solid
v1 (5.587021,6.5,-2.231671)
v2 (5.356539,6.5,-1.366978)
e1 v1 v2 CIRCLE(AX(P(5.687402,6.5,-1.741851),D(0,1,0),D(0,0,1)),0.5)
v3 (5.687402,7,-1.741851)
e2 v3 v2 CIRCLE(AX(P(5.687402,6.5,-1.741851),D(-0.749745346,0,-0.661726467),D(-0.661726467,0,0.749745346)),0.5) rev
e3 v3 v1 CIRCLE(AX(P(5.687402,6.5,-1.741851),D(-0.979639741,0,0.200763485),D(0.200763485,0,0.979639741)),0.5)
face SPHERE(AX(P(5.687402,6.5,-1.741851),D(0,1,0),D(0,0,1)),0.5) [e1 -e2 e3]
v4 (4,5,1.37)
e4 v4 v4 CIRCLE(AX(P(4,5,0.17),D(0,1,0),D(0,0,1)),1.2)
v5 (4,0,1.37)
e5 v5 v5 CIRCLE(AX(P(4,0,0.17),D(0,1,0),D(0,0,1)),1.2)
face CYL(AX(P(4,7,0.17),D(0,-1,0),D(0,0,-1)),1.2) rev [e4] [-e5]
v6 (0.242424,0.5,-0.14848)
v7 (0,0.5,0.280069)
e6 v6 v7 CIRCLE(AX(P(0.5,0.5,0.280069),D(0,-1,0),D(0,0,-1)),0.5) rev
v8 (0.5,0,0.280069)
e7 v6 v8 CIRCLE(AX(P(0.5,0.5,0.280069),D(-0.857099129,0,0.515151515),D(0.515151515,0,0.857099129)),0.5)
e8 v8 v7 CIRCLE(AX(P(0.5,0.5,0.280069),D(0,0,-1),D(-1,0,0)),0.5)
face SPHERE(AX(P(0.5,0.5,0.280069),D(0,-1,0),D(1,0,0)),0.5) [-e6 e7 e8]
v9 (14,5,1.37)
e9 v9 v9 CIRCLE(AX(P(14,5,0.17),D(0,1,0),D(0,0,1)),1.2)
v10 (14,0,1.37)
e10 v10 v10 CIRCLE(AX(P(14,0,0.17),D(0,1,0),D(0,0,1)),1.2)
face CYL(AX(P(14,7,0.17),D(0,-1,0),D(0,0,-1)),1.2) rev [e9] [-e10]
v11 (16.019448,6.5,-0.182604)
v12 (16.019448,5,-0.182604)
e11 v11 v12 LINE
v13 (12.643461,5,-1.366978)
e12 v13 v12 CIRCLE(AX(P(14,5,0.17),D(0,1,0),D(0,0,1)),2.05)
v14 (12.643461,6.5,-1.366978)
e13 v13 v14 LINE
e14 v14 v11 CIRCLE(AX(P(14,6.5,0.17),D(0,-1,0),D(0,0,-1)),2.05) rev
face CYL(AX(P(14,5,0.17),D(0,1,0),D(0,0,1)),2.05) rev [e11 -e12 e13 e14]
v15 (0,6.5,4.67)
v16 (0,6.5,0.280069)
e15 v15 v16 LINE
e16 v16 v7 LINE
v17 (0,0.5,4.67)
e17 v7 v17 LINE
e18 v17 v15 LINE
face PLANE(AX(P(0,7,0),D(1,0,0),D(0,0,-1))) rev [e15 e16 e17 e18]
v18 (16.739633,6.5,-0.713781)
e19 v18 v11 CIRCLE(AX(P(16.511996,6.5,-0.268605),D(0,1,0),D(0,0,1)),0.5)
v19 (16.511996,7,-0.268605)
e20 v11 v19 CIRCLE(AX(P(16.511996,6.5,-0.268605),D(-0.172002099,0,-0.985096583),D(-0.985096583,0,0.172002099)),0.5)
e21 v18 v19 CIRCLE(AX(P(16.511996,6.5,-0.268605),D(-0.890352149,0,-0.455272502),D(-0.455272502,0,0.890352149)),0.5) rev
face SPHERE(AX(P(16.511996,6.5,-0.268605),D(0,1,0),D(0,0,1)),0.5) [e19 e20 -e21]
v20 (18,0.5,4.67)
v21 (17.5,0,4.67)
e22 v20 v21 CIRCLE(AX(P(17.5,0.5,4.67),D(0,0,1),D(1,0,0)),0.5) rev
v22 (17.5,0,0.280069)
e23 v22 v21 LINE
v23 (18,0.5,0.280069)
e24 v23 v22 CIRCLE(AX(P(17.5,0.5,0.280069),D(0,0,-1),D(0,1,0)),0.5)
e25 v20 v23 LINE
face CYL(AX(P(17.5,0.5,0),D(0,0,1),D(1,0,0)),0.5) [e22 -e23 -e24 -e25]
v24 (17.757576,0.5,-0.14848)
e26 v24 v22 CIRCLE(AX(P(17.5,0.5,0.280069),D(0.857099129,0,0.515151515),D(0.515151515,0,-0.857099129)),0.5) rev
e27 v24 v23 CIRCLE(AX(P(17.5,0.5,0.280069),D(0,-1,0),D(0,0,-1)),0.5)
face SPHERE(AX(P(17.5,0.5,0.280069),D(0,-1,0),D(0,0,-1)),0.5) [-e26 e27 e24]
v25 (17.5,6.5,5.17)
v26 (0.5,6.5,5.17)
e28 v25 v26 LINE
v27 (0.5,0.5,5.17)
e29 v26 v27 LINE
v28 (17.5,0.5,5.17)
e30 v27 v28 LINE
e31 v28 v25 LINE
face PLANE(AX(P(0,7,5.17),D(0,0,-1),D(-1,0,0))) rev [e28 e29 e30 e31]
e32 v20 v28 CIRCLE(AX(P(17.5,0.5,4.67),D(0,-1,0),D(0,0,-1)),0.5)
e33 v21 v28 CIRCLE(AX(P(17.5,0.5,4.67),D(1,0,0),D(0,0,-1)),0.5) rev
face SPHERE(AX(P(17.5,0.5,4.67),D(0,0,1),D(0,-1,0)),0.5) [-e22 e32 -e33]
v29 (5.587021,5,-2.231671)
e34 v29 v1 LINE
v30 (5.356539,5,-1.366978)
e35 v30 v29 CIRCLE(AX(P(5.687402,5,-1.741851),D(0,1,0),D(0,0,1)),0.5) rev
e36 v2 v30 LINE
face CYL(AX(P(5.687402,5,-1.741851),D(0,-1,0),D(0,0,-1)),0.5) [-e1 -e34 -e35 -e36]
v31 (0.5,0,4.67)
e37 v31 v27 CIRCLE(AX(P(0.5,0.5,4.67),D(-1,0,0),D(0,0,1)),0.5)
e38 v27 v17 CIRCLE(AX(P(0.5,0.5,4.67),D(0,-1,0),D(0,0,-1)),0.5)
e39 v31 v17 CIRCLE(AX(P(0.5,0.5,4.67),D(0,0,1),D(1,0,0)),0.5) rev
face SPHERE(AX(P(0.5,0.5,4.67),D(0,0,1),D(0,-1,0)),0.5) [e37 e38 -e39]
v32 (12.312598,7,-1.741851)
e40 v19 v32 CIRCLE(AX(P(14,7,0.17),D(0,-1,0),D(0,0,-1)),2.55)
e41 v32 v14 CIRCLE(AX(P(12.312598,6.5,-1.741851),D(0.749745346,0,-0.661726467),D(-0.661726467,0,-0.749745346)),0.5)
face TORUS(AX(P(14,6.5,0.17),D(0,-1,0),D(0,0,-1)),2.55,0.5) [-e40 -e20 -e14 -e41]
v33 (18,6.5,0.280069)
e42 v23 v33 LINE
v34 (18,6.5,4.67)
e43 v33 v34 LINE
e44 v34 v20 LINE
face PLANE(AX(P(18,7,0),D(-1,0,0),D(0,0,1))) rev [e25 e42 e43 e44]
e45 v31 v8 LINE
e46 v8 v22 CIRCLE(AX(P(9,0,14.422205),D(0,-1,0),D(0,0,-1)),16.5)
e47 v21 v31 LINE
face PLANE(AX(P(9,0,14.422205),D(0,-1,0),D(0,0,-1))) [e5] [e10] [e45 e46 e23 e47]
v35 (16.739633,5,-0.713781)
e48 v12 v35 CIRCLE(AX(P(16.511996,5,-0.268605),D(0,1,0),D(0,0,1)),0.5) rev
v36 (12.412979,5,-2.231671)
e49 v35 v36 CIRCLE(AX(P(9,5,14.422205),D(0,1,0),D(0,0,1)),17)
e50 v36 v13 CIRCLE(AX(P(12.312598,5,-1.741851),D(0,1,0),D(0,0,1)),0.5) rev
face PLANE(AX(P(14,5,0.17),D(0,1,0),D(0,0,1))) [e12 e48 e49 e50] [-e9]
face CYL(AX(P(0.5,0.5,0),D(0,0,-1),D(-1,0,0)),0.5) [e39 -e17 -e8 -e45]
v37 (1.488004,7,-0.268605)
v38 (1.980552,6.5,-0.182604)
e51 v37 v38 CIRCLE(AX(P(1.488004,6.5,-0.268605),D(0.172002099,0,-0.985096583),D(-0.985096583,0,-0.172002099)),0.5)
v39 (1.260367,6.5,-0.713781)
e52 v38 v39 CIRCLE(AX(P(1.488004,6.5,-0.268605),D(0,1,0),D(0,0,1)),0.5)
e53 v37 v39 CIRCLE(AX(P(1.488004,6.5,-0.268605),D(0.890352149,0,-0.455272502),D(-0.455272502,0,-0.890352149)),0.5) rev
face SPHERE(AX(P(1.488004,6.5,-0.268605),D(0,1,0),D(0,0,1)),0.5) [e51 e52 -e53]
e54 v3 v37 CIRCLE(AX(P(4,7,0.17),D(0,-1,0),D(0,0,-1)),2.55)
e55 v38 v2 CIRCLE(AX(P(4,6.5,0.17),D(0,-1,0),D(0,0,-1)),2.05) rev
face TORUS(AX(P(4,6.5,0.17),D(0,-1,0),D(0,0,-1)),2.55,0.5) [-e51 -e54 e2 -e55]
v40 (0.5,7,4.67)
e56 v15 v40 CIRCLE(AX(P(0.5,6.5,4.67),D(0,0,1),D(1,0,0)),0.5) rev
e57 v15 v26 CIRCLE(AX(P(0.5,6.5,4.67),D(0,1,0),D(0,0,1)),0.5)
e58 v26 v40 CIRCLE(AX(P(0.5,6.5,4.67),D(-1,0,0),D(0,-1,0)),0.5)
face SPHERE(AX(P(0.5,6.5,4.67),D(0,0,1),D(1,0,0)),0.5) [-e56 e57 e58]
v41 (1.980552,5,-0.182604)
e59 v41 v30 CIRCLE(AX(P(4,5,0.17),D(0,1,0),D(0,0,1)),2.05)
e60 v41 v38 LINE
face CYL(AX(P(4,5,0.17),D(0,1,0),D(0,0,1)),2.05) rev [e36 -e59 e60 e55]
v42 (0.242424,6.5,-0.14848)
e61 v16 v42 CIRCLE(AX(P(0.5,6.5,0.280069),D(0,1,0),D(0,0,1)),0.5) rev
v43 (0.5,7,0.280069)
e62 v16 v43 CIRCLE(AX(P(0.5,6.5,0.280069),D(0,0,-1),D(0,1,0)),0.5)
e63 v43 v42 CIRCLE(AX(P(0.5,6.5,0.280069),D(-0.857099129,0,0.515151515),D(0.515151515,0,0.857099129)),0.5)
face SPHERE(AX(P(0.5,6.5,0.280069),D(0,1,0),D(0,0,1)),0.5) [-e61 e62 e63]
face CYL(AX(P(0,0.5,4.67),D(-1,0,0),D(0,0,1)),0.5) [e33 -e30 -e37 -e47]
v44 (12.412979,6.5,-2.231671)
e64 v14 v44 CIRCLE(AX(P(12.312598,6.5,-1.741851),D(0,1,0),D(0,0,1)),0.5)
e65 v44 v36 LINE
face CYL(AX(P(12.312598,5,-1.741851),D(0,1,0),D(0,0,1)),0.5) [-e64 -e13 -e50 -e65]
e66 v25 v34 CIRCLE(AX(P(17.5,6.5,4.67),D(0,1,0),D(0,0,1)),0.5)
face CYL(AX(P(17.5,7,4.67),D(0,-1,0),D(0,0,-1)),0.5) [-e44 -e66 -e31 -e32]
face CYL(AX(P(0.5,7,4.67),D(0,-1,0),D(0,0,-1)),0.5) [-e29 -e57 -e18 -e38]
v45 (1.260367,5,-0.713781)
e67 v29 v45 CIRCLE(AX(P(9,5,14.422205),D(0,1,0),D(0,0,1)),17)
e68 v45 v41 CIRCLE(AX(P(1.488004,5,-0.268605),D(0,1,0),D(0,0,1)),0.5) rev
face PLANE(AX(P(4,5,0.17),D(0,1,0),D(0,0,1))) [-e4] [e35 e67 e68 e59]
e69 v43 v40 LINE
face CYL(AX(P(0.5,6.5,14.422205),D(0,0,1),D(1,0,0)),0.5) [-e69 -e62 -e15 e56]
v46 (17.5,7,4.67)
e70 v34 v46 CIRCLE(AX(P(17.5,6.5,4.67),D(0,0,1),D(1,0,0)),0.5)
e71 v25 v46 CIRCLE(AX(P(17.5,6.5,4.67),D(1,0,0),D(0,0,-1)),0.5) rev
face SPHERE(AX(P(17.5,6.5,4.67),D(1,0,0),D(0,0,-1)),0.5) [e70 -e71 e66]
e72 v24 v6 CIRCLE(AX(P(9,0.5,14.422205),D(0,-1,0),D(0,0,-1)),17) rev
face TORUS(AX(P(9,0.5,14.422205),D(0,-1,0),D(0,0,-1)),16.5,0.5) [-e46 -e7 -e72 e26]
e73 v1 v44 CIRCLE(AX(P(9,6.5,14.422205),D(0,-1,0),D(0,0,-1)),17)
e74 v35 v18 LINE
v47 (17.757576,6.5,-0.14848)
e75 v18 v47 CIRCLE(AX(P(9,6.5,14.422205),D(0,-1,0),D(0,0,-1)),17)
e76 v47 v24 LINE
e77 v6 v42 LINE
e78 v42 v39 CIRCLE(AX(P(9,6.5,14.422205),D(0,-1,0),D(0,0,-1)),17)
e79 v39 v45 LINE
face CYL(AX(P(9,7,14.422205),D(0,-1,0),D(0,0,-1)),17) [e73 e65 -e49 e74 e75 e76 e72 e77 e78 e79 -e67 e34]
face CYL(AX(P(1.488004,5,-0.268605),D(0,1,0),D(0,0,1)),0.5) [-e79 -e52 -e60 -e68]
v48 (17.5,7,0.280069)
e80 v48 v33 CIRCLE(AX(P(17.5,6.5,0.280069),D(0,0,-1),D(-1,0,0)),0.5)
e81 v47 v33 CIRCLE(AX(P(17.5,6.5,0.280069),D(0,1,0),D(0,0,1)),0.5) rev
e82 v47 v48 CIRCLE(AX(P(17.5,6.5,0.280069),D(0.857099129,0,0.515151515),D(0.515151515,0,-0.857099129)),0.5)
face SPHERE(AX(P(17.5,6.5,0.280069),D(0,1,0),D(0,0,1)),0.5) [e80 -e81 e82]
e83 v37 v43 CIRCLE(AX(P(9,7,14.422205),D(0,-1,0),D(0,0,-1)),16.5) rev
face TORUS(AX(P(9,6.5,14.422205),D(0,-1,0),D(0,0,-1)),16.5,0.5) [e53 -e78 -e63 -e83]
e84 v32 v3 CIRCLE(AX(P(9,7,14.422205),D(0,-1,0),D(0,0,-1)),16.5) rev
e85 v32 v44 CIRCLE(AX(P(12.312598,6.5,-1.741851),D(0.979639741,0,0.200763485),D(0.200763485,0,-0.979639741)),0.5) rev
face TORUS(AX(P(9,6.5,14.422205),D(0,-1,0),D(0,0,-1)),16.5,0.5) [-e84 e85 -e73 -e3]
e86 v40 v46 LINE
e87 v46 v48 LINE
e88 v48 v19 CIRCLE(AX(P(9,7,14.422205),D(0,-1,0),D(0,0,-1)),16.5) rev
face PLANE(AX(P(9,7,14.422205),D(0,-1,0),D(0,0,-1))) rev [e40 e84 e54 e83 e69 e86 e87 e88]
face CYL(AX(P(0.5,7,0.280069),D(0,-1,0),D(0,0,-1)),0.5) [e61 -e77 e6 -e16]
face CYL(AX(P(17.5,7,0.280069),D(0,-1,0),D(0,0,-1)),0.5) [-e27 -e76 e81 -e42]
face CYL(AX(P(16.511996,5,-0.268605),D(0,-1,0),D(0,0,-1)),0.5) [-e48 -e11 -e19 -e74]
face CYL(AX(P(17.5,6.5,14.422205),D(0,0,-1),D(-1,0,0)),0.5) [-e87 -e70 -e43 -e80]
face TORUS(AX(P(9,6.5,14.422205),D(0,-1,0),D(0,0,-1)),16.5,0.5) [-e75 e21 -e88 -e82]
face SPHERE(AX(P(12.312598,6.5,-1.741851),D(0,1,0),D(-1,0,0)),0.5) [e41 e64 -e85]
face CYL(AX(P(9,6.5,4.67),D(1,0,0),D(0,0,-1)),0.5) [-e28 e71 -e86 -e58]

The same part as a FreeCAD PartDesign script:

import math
import FreeCAD as App
import Part
import Sketcher
from FreeCAD import Vector


def edges_at(feature, points):
    """Names of the edges that pass closest to the given points."""
    edges = feature.Shape.Edges
    near = lambda p: min(range(len(edges)), key=lambda i: edges[i].distToShape(Part.Vertex(*p))[0])
    return sorted({f"Edge{near(p) + 1}" for p in points})

doc = App.newDocument("Part")
params = doc.addObject("Spreadsheet::Sheet", "Params")
for row, (alias, value) in enumerate([
    ("sketch1_radius", "17 mm"),
    ("sketch1_diameter", "2.4 mm"),
    ("sketch1_width", "18 mm"),
    ("sketch1_height", "5.17 mm"),
    ("pad1_length", "7 mm"),
    ("sketch2_diameter", "4.1 mm"),
    ("pocket1_length", "2 mm"),
    ("fillet_radius", "0.5 mm"),
], start=1):
    params.set(f"A{row}", alias)
    params.set(f"B{row}", "=" + value)
    params.setAlias(f"B{row}", alias)

body = doc.addObject("PartDesign::Body", "Body")

sketch1 = body.newObject("Sketcher::SketchObject", "Sketch")
sketch1.AttachmentSupport = (doc.getObject("XZ_Plane"), [""])
sketch1.MapMode = "FlatFace"
sketch1.addGeometry(Part.LineSegment(Vector(0, 0, 0), Vector(0, 5.2, 0)), False)
sketch1.addGeometry(Part.LineSegment(Vector(0, 5.2, 0), Vector(18, 5.2, 0)), False)
sketch1.addGeometry(Part.LineSegment(Vector(18, 5.2, 0), Vector(18, 0, 0)), False)
sketch1.addGeometry(Part.ArcOfCircle(Part.Circle(Vector(9, 14.4, 0), Vector(0, 0, 1), 17), math.radians(-122), math.radians(-58)), False)
sketch1.addGeometry(Part.Circle(Vector(4, 0.2, 0), Vector(0, 0, 1), 1.2), False)
sketch1.addGeometry(Part.Circle(Vector(14, 0.2, 0), Vector(0, 0, 1), 1.2), False)
sketch1.addConstraint(Sketcher.Constraint("Coincident", 0, 2, 1, 1))
sketch1.addConstraint(Sketcher.Constraint("Coincident", 1, 2, 2, 1))
sketch1.addConstraint(Sketcher.Constraint("Coincident", 2, 2, 3, 2))
sketch1.addConstraint(Sketcher.Constraint("Coincident", 3, 1, 0, 1))
sketch1.addConstraint(Sketcher.Constraint("Vertical", 0))
sketch1.addConstraint(Sketcher.Constraint("Horizontal", 1))
sketch1.addConstraint(Sketcher.Constraint("Vertical", 2))
sketch1.addConstraint(Sketcher.Constraint("Coincident", 3, 1, -1, 1))
sketch1.addConstraint(Sketcher.Constraint("Equal", 4, 5))
sketch1.addConstraint(Sketcher.Constraint("PointOnObject", 2, 2, -1))
sketch1.addConstraint(Sketcher.Constraint("Horizontal", 4, 3, 5, 3))
sketch1.addConstraint(Sketcher.Constraint("Radius", 3, 17.0))
sketch1.addConstraint(Sketcher.Constraint("Diameter", 4, 2.4))
sketch1.addConstraint(Sketcher.Constraint("DistanceX", 1, 1, 1, 2, 18.0))
sketch1.addConstraint(Sketcher.Constraint("DistanceX", -1, 1, 4, 3, 4.0))
sketch1.addConstraint(Sketcher.Constraint("DistanceX", -1, 1, 5, 3, 14.0))
sketch1.addConstraint(Sketcher.Constraint("DistanceY", 4, 3, 0, 2, 5.0))
sketch1.addConstraint(Sketcher.Constraint("DistanceY", 0, 1, 0, 2, 5.17))
sketch1.setExpression("Constraints[11]", "Params.sketch1_radius")
sketch1.setExpression("Constraints[12]", "Params.sketch1_diameter")
sketch1.setExpression("Constraints[13]", "Params.sketch1_width")
sketch1.setExpression("Constraints[17]", "Params.sketch1_height")
pad1 = body.newObject("PartDesign::Pad", "Pad")
pad1.Profile = sketch1
pad1.setExpression("Length", "Params.pad1_length")
pad1.Reversed = True

sketch2 = body.newObject("Sketcher::SketchObject", "Sketch001")
sketch2.AttachmentSupport = (doc.getObject("XZ_Plane"), [""])
sketch2.MapMode = "FlatFace"
sketch2.AttachmentOffset = App.Placement(Vector(0, 0, -7), App.Rotation())
sketch2.addGeometry(Part.Circle(Vector(4, 0.2, 0), Vector(0, 0, 1), 2), False)
sketch2.addGeometry(Part.Circle(Vector(14, 0.2, 0), Vector(0, 0, 1), 2), False)
sketch2.addConstraint(Sketcher.Constraint("Equal", 0, 1))
sketch2.addConstraint(Sketcher.Constraint("Horizontal", 0, 3, 1, 3))
sketch2.addConstraint(Sketcher.Constraint("Diameter", 0, 4.1))
sketch2.addConstraint(Sketcher.Constraint("DistanceX", -1, 1, 0, 3, 4.0))
sketch2.addConstraint(Sketcher.Constraint("DistanceX", -1, 1, 1, 3, 14.0))
sketch2.addConstraint(Sketcher.Constraint("DistanceY", -1, 1, 0, 3, 0.17))
sketch2.setExpression("Constraints[2]", "Params.sketch2_diameter")
pocket1 = body.newObject("PartDesign::Pocket", "Pocket")
pocket1.Profile = sketch2
pocket1.setExpression("Length", "Params.pocket1_length")
pocket1.Reversed = True
doc.recompute()

fillet = body.newObject("PartDesign::Fillet", "Fillet")
fillet.Base = (pocket1, edges_at(pocket1, [
    (0, 7, 2.585),
    (9, 7, 5.17),
    (9, 7, -2.578),
    (1.271, 7, -0.719),
    (13.841, 6, -1.874),
    (15.401, 6, -1.327),
    (2.599, 6, -1.327),
    (4.159, 6, -1.874),
    (4.679, 7, 2.104),
    (13.321, 7, 2.104),
    (18, 7, 2.585),
    (9, 0, 5.17),
    (0, 0, 2.585),
    (9, 0, -2.578),
    (18, 0, 2.585),
    (18, 3.5, 5.17),
    (0, 3.5, 5.17),
    (0, 3.5, 0),
    (18, 3.5, 0),
    (16.729, 7, -0.719),
]))
fillet.setExpression("Radius", "Params.fillet_radius")

doc.recompute()
